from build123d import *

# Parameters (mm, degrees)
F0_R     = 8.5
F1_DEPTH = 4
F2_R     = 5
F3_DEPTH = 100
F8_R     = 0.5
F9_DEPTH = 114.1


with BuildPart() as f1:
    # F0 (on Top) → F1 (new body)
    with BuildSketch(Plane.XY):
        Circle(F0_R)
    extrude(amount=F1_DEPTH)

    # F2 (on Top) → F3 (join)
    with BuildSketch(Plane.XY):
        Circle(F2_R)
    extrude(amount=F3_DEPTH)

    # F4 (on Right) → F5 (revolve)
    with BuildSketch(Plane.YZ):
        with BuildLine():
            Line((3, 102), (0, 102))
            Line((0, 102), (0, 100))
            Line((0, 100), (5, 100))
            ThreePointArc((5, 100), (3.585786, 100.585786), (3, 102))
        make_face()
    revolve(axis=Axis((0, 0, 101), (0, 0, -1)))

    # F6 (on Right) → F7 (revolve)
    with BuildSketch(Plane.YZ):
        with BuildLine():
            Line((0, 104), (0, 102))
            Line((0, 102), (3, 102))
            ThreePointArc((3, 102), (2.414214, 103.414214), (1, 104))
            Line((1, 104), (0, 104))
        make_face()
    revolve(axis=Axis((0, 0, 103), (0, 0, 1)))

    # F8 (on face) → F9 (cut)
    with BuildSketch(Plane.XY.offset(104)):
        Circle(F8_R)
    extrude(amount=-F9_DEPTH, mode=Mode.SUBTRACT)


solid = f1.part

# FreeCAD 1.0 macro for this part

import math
import FreeCAD as App
import Part
import Sketcher
from FreeCAD import Vector

doc = App.newDocument("Part")
params = doc.addObject("Spreadsheet::Sheet", "Params")
for row, (alias, value) in enumerate([
    ("sketch1_diameter", "17 mm"),
    ("pad1_length", "4 mm"),
    ("sketch2_diameter", "10 mm"),
    ("pad2_length", "100 mm"),
    ("sketch3_radius", "1.999999 mm"),
    ("sketch3_width", "3 mm"),
    ("revolution_angle", "360 deg"),
    ("sketch4_radius", "1.999999 mm"),
    ("sketch4_width", "3 mm"),
    ("revolution2_angle", "360 deg"),
    ("sketch5_diameter", "1 mm"),
    ("pocket1_length", "114.1 mm"),
], start=1):
    params.set(f"A{row}", alias)
    params.set(f"B{row}", "=" + value)
    params.setAlias(f"B{row}", alias)

body = doc.addObject("PartDesign::Body", "Body")

sketch1 = body.newObject("Sketcher::SketchObject", "Sketch")
sketch1.AttachmentSupport = (doc.getObject("XY_Plane"), [""])
sketch1.MapMode = "FlatFace"
sketch1.addGeometry(Part.Circle(Vector(0, 0, 0), Vector(0, 0, 1), 8.5), False)
sketch1.addConstraint([
    Sketcher.Constraint("Coincident", 0, 3, -1, 1),
    Sketcher.Constraint("Diameter", 0, 17.0),
])
sketch1.setExpression("Constraints[1]", "Params.sketch1_diameter")
pad1 = body.newObject("PartDesign::Pad", "Pad")
pad1.Profile = sketch1
pad1.setExpression("Length", "Params.pad1_length")

sketch2 = body.newObject("Sketcher::SketchObject", "Sketch001")
sketch2.AttachmentSupport = (doc.getObject("XY_Plane"), [""])
sketch2.MapMode = "FlatFace"
sketch2.addGeometry(Part.Circle(Vector(0, 0, 0), Vector(0, 0, 1), 5), False)
sketch2.addConstraint([
    Sketcher.Constraint("Coincident", 0, 3, -1, 1),
    Sketcher.Constraint("Diameter", 0, 10.0),
])
sketch2.setExpression("Constraints[1]", "Params.sketch2_diameter")
pad2 = body.newObject("PartDesign::Pad", "Pad001")
pad2.Profile = sketch2
pad2.setExpression("Length", "Params.pad2_length")

sketch3 = body.newObject("Sketcher::SketchObject", "Sketch002")
sketch3.AttachmentSupport = (doc.getObject("YZ_Plane"), [""])
sketch3.MapMode = "FlatFace"
sketch3.addGeometry([
    Part.LineSegment(Vector(3, 102, 0), Vector(0, 102, 0)),
    Part.LineSegment(Vector(0, 102, 0), Vector(0, 100, 0)),
    Part.LineSegment(Vector(0, 100, 0), Vector(5, 100, 0)),
    Part.ArcOfCircle(Part.Circle(Vector(4.999999, 101.999999, 0), Vector(0, 0, 1), 1.999999), math.radians(179.999957), math.radians(270.000043)),
], False)
sketch3.addConstraint([
    Sketcher.Constraint("Coincident", 0, 2, 1, 1),
    Sketcher.Constraint("Coincident", 1, 2, 2, 1),
    Sketcher.Constraint("Tangent", 2, 2, 3, 2),
    Sketcher.Constraint("Coincident", 3, 1, 0, 1),
    Sketcher.Constraint("Horizontal", 0),
    Sketcher.Constraint("Vertical", 1),
    Sketcher.Constraint("Horizontal", 2),
    Sketcher.Constraint("PointOnObject", 0, 2, -2),
    Sketcher.Constraint("Horizontal", 3, 3, 0, 2),
    Sketcher.Constraint("Radius", 3, 1.999999),
    Sketcher.Constraint("DistanceX", 0, 2, 0, 1, 3.0),
    Sketcher.Constraint("DistanceY", -1, 1, 3, 3, 101.999999),
])
sketch3.setExpression("Constraints[9]", "Params.sketch3_radius")
sketch3.setExpression("Constraints[10]", "Params.sketch3_width")
revolution = body.newObject("PartDesign::Revolution", "Revolution")
revolution.Profile = sketch3
revolution.ReferenceAxis = (sketch3, ["V_Axis"])
revolution.setExpression("Angle", "Params.revolution_angle")

sketch4 = body.newObject("Sketcher::SketchObject", "Sketch003")
sketch4.AttachmentSupport = (doc.getObject("YZ_Plane"), [""])
sketch4.MapMode = "FlatFace"
sketch4.addGeometry([
    Part.LineSegment(Vector(0, 104, 0), Vector(0, 102, 0)),
    Part.LineSegment(Vector(0, 102, 0), Vector(3, 102, 0)),
    Part.ArcOfCircle(Part.Circle(Vector(1.000001, 102.000001, 0), Vector(0, 0, 1), 1.999999), math.radians(-0.000043), math.radians(90.000043)),
    Part.LineSegment(Vector(1, 104, 0), Vector(0, 104, 0)),
], False)
sketch4.addConstraint([
    Sketcher.Constraint("Coincident", 0, 2, 1, 1),
    Sketcher.Constraint("Coincident", 1, 2, 2, 1),
    Sketcher.Constraint("Tangent", 2, 2, 3, 1),
    Sketcher.Constraint("Coincident", 3, 2, 0, 1),
    Sketcher.Constraint("Vertical", 0),
    Sketcher.Constraint("Horizontal", 1),
    Sketcher.Constraint("Horizontal", 3),
    Sketcher.Constraint("PointOnObject", 0, 2, -2),
    Sketcher.Constraint("Horizontal", 2, 3, 0, 2),
    Sketcher.Constraint("Radius", 2, 1.999999),
    Sketcher.Constraint("DistanceX", 1, 1, 1, 2, 3.0),
    Sketcher.Constraint("DistanceY", -1, 1, 2, 3, 102.000001),
])
sketch4.setExpression("Constraints[9]", "Params.sketch4_radius")
sketch4.setExpression("Constraints[10]", "Params.sketch4_width")
revolution2 = body.newObject("PartDesign::Revolution", "Revolution001")
revolution2.Profile = sketch4
revolution2.ReferenceAxis = (sketch4, ["V_Axis"])
revolution2.setExpression("Angle", "Params.revolution2_angle")

sketch5 = body.newObject("Sketcher::SketchObject", "Sketch004")
sketch5.AttachmentSupport = (doc.getObject("XY_Plane"), [""])
sketch5.MapMode = "FlatFace"
sketch5.AttachmentOffset = App.Placement(Vector(0, 0, 104), App.Rotation())
sketch5.addGeometry(Part.Circle(Vector(0, 0, 0), Vector(0, 0, 1), 0.5), False)
sketch5.addConstraint([
    Sketcher.Constraint("Coincident", 0, 3, -1, 1),
    Sketcher.Constraint("Diameter", 0, 1.0),
])
sketch5.setExpression("Constraints[1]", "Params.sketch5_diameter")
pocket1 = body.newObject("PartDesign::Pocket", "Pocket")
pocket1.Profile = sketch5
pocket1.setExpression("Length", "Params.pocket1_length")

doc.recompute()
